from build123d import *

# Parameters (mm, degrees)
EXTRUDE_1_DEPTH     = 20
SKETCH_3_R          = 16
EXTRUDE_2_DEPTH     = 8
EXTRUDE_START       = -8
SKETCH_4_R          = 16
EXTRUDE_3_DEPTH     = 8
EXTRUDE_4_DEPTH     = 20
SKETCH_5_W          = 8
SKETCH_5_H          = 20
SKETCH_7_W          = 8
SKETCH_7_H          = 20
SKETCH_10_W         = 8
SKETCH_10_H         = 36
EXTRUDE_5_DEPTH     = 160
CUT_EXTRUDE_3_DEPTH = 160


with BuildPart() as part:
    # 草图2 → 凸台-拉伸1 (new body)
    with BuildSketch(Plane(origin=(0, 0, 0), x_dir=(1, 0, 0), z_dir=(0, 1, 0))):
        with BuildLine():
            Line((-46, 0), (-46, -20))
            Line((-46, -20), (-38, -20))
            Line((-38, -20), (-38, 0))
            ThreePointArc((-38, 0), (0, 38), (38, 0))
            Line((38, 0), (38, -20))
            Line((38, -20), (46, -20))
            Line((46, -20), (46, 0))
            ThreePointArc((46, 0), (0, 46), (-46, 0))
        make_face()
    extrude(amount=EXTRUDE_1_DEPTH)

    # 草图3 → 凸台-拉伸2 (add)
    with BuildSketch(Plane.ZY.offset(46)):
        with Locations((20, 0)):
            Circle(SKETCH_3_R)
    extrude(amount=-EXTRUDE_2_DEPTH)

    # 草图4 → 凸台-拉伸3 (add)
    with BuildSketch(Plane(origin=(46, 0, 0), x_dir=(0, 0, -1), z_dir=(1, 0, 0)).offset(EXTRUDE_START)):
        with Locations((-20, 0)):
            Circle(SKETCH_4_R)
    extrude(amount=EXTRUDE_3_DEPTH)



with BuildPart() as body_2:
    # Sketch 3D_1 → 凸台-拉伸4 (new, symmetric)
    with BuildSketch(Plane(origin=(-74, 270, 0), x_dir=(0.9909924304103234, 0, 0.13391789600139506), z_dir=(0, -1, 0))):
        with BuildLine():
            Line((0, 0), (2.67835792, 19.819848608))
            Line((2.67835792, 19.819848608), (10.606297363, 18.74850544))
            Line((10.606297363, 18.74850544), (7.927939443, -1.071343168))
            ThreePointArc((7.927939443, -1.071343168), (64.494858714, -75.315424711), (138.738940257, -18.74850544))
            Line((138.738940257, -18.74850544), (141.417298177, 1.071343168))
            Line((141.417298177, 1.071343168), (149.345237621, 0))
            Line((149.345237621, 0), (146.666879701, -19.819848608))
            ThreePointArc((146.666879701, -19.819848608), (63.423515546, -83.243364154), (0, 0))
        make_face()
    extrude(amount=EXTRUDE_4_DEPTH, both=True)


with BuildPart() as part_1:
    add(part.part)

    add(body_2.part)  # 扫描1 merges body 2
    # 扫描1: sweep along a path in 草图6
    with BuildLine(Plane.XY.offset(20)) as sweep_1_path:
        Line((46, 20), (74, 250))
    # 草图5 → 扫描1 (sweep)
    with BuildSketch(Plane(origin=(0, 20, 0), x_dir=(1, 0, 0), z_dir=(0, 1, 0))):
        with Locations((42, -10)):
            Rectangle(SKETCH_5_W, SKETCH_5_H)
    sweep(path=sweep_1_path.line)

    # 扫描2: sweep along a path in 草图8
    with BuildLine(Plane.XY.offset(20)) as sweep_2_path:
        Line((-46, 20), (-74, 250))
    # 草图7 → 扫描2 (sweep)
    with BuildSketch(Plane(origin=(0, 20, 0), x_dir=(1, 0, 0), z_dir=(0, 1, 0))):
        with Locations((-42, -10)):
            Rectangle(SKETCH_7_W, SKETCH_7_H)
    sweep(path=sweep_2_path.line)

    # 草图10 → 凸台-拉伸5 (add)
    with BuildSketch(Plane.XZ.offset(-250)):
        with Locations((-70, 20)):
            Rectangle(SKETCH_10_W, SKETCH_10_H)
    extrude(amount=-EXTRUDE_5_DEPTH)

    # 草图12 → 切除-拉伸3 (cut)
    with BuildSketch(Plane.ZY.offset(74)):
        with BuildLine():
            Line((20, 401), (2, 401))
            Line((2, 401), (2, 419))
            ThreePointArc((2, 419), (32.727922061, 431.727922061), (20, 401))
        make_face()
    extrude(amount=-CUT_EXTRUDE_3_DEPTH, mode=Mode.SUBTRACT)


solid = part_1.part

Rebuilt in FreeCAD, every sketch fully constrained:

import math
import FreeCAD as App
import Part
import Sketcher
from FreeCAD import Vector
Q = App.Units.Quantity

doc = App.newDocument("Part")
body = doc.addObject("PartDesign::Body", "Body")

# Sketch on XZ plane
sketch1 = body.newObject("Sketcher::SketchObject", "Sketch")
sketch1.AttachmentSupport = (doc.getObject("XZ_Plane"), [""])
sketch1.MapMode = "FlatFace"
sketch1.addGeometry(Part.LineSegment(Vector(-46, 0, 0), Vector(-46, 20, 0)), False)
sketch1.addGeometry(Part.LineSegment(Vector(-46, 20, 0), Vector(-38, 20, 0)), False)
sketch1.addGeometry(Part.LineSegment(Vector(-38, 20, 0), Vector(-38, 0, 0)), False)
sketch1.addGeometry(Part.ArcOfCircle(Part.Circle(Vector(0, 0, 0), Vector(0, 0, 1), 38), math.radians(180), math.radians(360)), False)
sketch1.addGeometry(Part.LineSegment(Vector(38, 0, 0), Vector(38, 20, 0)), False)
sketch1.addGeometry(Part.LineSegment(Vector(38, 20, 0), Vector(46, 20, 0)), False)
sketch1.addGeometry(Part.LineSegment(Vector(46, 20, 0), Vector(46, 0, 0)), False)
sketch1.addGeometry(Part.ArcOfCircle(Part.Circle(Vector(0, 0, 0), Vector(0, 0, 1), 46), math.radians(180), math.radians(360)), False)
sketch1.addConstraint(Sketcher.Constraint("Coincident", 0, 2, 1, 1))
sketch1.addConstraint(Sketcher.Constraint("Coincident", 1, 2, 2, 1))
sketch1.addConstraint(Sketcher.Constraint("Tangent", 2, 2, 3, 1))
sketch1.addConstraint(Sketcher.Constraint("Tangent", 3, 2, 4, 1))
sketch1.addConstraint(Sketcher.Constraint("Coincident", 4, 2, 5, 1))
sketch1.addConstraint(Sketcher.Constraint("Coincident", 5, 2, 6, 1))
sketch1.addConstraint(Sketcher.Constraint("Tangent", 6, 2, 7, 2))
sketch1.addConstraint(Sketcher.Constraint("Tangent", 7, 1, 0, 1))
sketch1.addConstraint(Sketcher.Constraint("Vertical", 0))
sketch1.addConstraint(Sketcher.Constraint("Horizontal", 1))
sketch1.addConstraint(Sketcher.Constraint("Vertical", 2))
sketch1.addConstraint(Sketcher.Constraint("Vertical", 4))
sketch1.addConstraint(Sketcher.Constraint("Horizontal", 5))
sketch1.addConstraint(Sketcher.Constraint("Vertical", 6))
sketch1.addConstraint(Sketcher.Constraint("Coincident", 3, 3, -1, 1))
sketch1.addConstraint(Sketcher.Constraint("Coincident", 7, 3, -1, 1))
sketch1.addConstraint(Sketcher.Constraint("Horizontal", 1, 2, 4, 2))
sketch1.addConstraint(Sketcher.Constraint("Radius", 3, Q("38 mm")))
sketch1.addConstraint(Sketcher.Constraint("Radius", 7, Q("46 mm")))
sketch1.addConstraint(Sketcher.Constraint("DistanceY", 0, 1, 0, 2, Q("20 mm")))
pad1 = body.newObject("PartDesign::Pad", "Pad")
pad1.Profile = sketch1
pad1.Length = 20
pad1.Reversed = True

# Sketch on YZ plane
sketch2 = body.newObject("Sketcher::SketchObject", "Sketch001")
sketch2.AttachmentSupport = (doc.getObject("YZ_Plane"), [""])
sketch2.MapMode = "FlatFace"
sketch2.AttachmentOffset = App.Placement(Vector(0, 0, -46), App.Rotation())
sketch2.addGeometry(Part.Circle(Vector(0, 20, 0), Vector(0, 0, 1), 16), False)
sketch2.addConstraint(Sketcher.Constraint("PointOnObject", 0, 3, -2))
sketch2.addConstraint(Sketcher.Constraint("Diameter", 0, Q("32 mm")))
sketch2.addConstraint(Sketcher.Constraint("DistanceY", -1, 1, 0, 3, Q("20 mm")))
pad2 = body.newObject("PartDesign::Pad", "Pad001")
pad2.Profile = sketch2
pad2.Length = 8

# Sketch on YZ plane
sketch3 = body.newObject("Sketcher::SketchObject", "Sketch002")
sketch3.AttachmentSupport = (doc.getObject("YZ_Plane"), [""])
sketch3.MapMode = "FlatFace"
sketch3.AttachmentOffset = App.Placement(Vector(0, 0, 38), App.Rotation())
sketch3.addGeometry(Part.Circle(Vector(0, 20, 0), Vector(0, 0, 1), 16), False)
sketch3.addConstraint(Sketcher.Constraint("PointOnObject", 0, 3, -2))
sketch3.addConstraint(Sketcher.Constraint("Diameter", 0, Q("32 mm")))
sketch3.addConstraint(Sketcher.Constraint("DistanceY", -1, 1, 0, 3, Q("20 mm")))
pad3 = body.newObject("PartDesign::Pad", "Pad002")
pad3.Profile = sketch3
pad3.Length = 8
body2 = doc.addObject("PartDesign::Body", "Body001")

# Sketch on XZ plane
sketch4 = body2.newObject("Sketcher::SketchObject", "Sketch003")
sketch4.AttachmentSupport = (doc.getObject("XZ_Plane001"), [""])
sketch4.MapMode = "FlatFace"
sketch4.AttachmentOffset = App.Placement(Vector(0, 0, -270), App.Rotation())
sketch4.addGeometry(Part.LineSegment(Vector(-74, 20, 0), Vector(-74, 0, 0)), False)
sketch4.addGeometry(Part.ArcOfCircle(Part.Circle(Vector(0, 0, 0), Vector(0, 0, 1), 74), math.radians(-180), math.radians(0)), False)
sketch4.addGeometry(Part.LineSegment(Vector(74, 0, 0), Vector(74, 20, 0)), False)
sketch4.addGeometry(Part.LineSegment(Vector(74, 20, 0), Vector(66, 20, 0)), False)
sketch4.addGeometry(Part.LineSegment(Vector(66, 20, 0), Vector(66, 0, 0)), False)
sketch4.addGeometry(Part.ArcOfCircle(Part.Circle(Vector(0, 0, 0), Vector(0, 0, 1), 66), math.radians(-180), math.radians(0)), False)
sketch4.addGeometry(Part.LineSegment(Vector(-66, 0, 0), Vector(-66, 20, 0)), False)
sketch4.addGeometry(Part.LineSegment(Vector(-66, 20, 0), Vector(-74, 20, 0)), False)
sketch4.addConstraint(Sketcher.Constraint("Tangent", 0, 2, 1, 1))
sketch4.addConstraint(Sketcher.Constraint("Tangent", 1, 2, 2, 1))
sketch4.addConstraint(Sketcher.Constraint("Coincident", 2, 2, 3, 1))
sketch4.addConstraint(Sketcher.Constraint("Coincident", 3, 2, 4, 1))
sketch4.addConstraint(Sketcher.Constraint("Tangent", 4, 2, 5, 2))
sketch4.addConstraint(Sketcher.Constraint("Tangent", 5, 1, 6, 1))
sketch4.addConstraint(Sketcher.Constraint("Coincident", 6, 2, 7, 1))
sketch4.addConstraint(Sketcher.Constraint("Coincident", 7, 2, 0, 1))
sketch4.addConstraint(Sketcher.Constraint("Vertical", 0))
sketch4.addConstraint(Sketcher.Constraint("Vertical", 2))
sketch4.addConstraint(Sketcher.Constraint("Horizontal", 3))
sketch4.addConstraint(Sketcher.Constraint("Vertical", 4))
sketch4.addConstraint(Sketcher.Constraint("Vertical", 6))
sketch4.addConstraint(Sketcher.Constraint("Horizontal", 7))
sketch4.addConstraint(Sketcher.Constraint("Coincident", 1, 3, -1, 1))
sketch4.addConstraint(Sketcher.Constraint("Coincident", 5, 3, -1, 1))
sketch4.addConstraint(Sketcher.Constraint("Horizontal", 3, 2, 6, 2))
sketch4.addConstraint(Sketcher.Constraint("Radius", 1, Q("74 mm")))
sketch4.addConstraint(Sketcher.Constraint("Radius", 5, Q("66 mm")))
sketch4.addConstraint(Sketcher.Constraint("DistanceY", 0, 2, 0, 1, Q("20 mm")))
pad4 = body2.newObject("PartDesign::Pad", "Pad003")
pad4.Profile = sketch4
pad4.Length = 40
pad4.Midplane = True
body.AllowCompound = True
doc.recompute()

boolean = body.newObject("PartDesign::Boolean", "Boolean")
boolean.Type = "Fuse"
boolean.addObjects([body2])

# Sketch on XZ plane
sketch5 = body.newObject("Sketcher::SketchObject", "Sketch004")
sketch5.AttachmentSupport = (doc.getObject("XZ_Plane"), [""])
sketch5.MapMode = "FlatFace"
sketch5.AttachmentOffset = App.Placement(Vector(0, 0, -20), App.Rotation())
sketch5.addGeometry(Part.LineSegment(Vector(38, 0, 0), Vector(38, 20, 0)), False)
sketch5.addGeometry(Part.LineSegment(Vector(38, 20, 0), Vector(46, 20, 0)), False)
sketch5.addGeometry(Part.LineSegment(Vector(46, 20, 0), Vector(46, 0, 0)), False)
sketch5.addGeometry(Part.LineSegment(Vector(46, 0, 0), Vector(38, 0, 0)), False)
sketch5.addConstraint(Sketcher.Constraint("Coincident", 0, 2, 1, 1))
sketch5.addConstraint(Sketcher.Constraint("Coincident", 1, 2, 2, 1))
sketch5.addConstraint(Sketcher.Constraint("Coincident", 2, 2, 3, 1))
sketch5.addConstraint(Sketcher.Constraint("Coincident", 3, 2, 0, 1))
sketch5.addConstraint(Sketcher.Constraint("Vertical", 0))
sketch5.addConstraint(Sketcher.Constraint("Horizontal", 1))
sketch5.addConstraint(Sketcher.Constraint("Vertical", 2))
sketch5.addConstraint(Sketcher.Constraint("Horizontal", 3))
sketch5.addConstraint(Sketcher.Constraint("PointOnObject", 2, 2, -1))
sketch5.addConstraint(Sketcher.Constraint("DistanceX", 1, 1, 1, 2, Q("8 mm")))
sketch5.addConstraint(Sketcher.Constraint("DistanceY", 0, 1, 0, 2, Q("20 mm")))
sketch5.addConstraint(Sketcher.Constraint("DistanceX", -1, 1, 0, 2, Q("38 mm")))

# Sketch on an angled plane
sketch6 = body.newObject("Sketcher::SketchObject", "Sketch005")
sketch6.Placement = App.Placement(Vector(42.928992, -5.226138, 0), App.Rotation(Vector(0.120846923, 0.992671155, 0), Vector(0, 0, 1.000000001), Vector(0.992671155, -0.120846923, 0), "ZXY"))
sketch6.addGeometry(Part.LineSegment(Vector(25, 20, 0), Vector(257, 20, 0)), False)
sketch6.addConstraint(Sketcher.Constraint("Horizontal", 0))
sketch6.addConstraint(Sketcher.Constraint("DistanceY", -1, 1, 0, 1, Q("20 mm")))
sketch6.addConstraint(Sketcher.Constraint("DistanceX", 0, 1, 0, 2, Q("231.69808 mm")))
sketch6.addConstraint(Sketcher.Constraint("DistanceX", -1, 1, 0, 1, Q("25.412382 mm")))
doc.recompute()

additivepipe = body.newObject("PartDesign::AdditivePipe", "AdditivePipe")
additivepipe.Profile = sketch5
additivepipe.Spine = (sketch6, ["Edge1"])

# Sketch on XZ plane
sketch7 = body.newObject("Sketcher::SketchObject", "Sketch006")
sketch7.AttachmentSupport = (doc.getObject("XZ_Plane"), [""])
sketch7.MapMode = "FlatFace"
sketch7.AttachmentOffset = App.Placement(Vector(0, 0, -20), App.Rotation())
sketch7.addGeometry(Part.LineSegment(Vector(-46, 0, 0), Vector(-46, 20, 0)), False)
sketch7.addGeometry(Part.LineSegment(Vector(-46, 20, 0), Vector(-38, 20, 0)), False)
sketch7.addGeometry(Part.LineSegment(Vector(-38, 20, 0), Vector(-38, 0, 0)), False)
sketch7.addGeometry(Part.LineSegment(Vector(-38, 0, 0), Vector(-46, 0, 0)), False)
sketch7.addConstraint(Sketcher.Constraint("Coincident", 0, 2, 1, 1))
sketch7.addConstraint(Sketcher.Constraint("Coincident", 1, 2, 2, 1))
sketch7.addConstraint(Sketcher.Constraint("Coincident", 2, 2, 3, 1))
sketch7.addConstraint(Sketcher.Constraint("Coincident", 3, 2, 0, 1))
sketch7.addConstraint(Sketcher.Constraint("Vertical", 0))
sketch7.addConstraint(Sketcher.Constraint("Horizontal", 1))
sketch7.addConstraint(Sketcher.Constraint("Vertical", 2))
sketch7.addConstraint(Sketcher.Constraint("Horizontal", 3))
sketch7.addConstraint(Sketcher.Constraint("PointOnObject", 2, 2, -1))
sketch7.addConstraint(Sketcher.Constraint("DistanceX", 1, 1, 1, 2, Q("8 mm")))
sketch7.addConstraint(Sketcher.Constraint("DistanceY", 0, 1, 0, 2, Q("20 mm")))
sketch7.addConstraint(Sketcher.Constraint("DistanceX", 0, 2, -1, 1, Q("46 mm")))

# Sketch on an angled plane
sketch8 = body.newObject("Sketcher::SketchObject", "Sketch007")
sketch8.Placement = App.Placement(Vector(-42.928992, -5.226138, 0), App.Rotation(Vector(-0.120846923, 0.992671155, 0), Vector(0, 0, 1.000000001), Vector(0.992671155, 0.120846923, 0), "ZXY"))
sketch8.addGeometry(Part.LineSegment(Vector(25, 20, 0), Vector(257, 20, 0)), False)
sketch8.addConstraint(Sketcher.Constraint("Horizontal", 0))
sketch8.addConstraint(Sketcher.Constraint("DistanceY", -1, 1, 0, 1, Q("20 mm")))
sketch8.addConstraint(Sketcher.Constraint("DistanceX", 0, 1, 0, 2, Q("231.69808 mm")))
sketch8.addConstraint(Sketcher.Constraint("DistanceX", -1, 1, 0, 1, Q("25.412382 mm")))
doc.recompute()

additivepipe2 = body.newObject("PartDesign::AdditivePipe", "AdditivePipe001")
additivepipe2.Profile = sketch7
additivepipe2.Spine = (sketch8, ["Edge1"])

# Sketch on XZ plane
sketch9 = body.newObject("Sketcher::SketchObject", "Sketch008")
sketch9.AttachmentSupport = (doc.getObject("XZ_Plane"), [""])
sketch9.MapMode = "FlatFace"
sketch9.AttachmentOffset = App.Placement(Vector(0, 0, -250), App.Rotation())
sketch9.addGeometry(Part.LineSegment(Vector(-74, 38, 0), Vector(-74, 2, 0)), False)
sketch9.addGeometry(Part.LineSegment(Vector(-74, 2, 0), Vector(-66, 2, 0)), False)
sketch9.addGeometry(Part.LineSegment(Vector(-66, 2, 0), Vector(-66, 38, 0)), False)
sketch9.addGeometry(Part.LineSegment(Vector(-66, 38, 0), Vector(-74, 38, 0)), False)
sketch9.addConstraint(Sketcher.Constraint("Coincident", 0, 2, 1, 1))
sketch9.addConstraint(Sketcher.Constraint("Coincident", 1, 2, 2, 1))
sketch9.addConstraint(Sketcher.Constraint("Coincident", 2, 2, 3, 1))
sketch9.addConstraint(Sketcher.Constraint("Coincident", 3, 2, 0, 1))
sketch9.addConstraint(Sketcher.Constraint("Vertical", 0))
sketch9.addConstraint(Sketcher.Constraint("Horizontal", 1))
sketch9.addConstraint(Sketcher.Constraint("Vertical", 2))
sketch9.addConstraint(Sketcher.Constraint("Horizontal", 3))
sketch9.addConstraint(Sketcher.Constraint("DistanceX", 1, 1, 1, 2, Q("8 mm")))
sketch9.addConstraint(Sketcher.Constraint("DistanceY", 0, 2, 0, 1, Q("36 mm")))
sketch9.addConstraint(Sketcher.Constraint("DistanceX", 0, 2, -1, 1, Q("74 mm")))
sketch9.addConstraint(Sketcher.Constraint("DistanceY", -1, 1, 0, 2, Q("2 mm")))
pad5 = body.newObject("PartDesign::Pad", "Pad004")
pad5.Profile = sketch9
pad5.Length = 160
pad5.Reversed = True

# Sketch on YZ plane
sketch10 = body.newObject("Sketcher::SketchObject", "Sketch009")
sketch10.AttachmentSupport = (doc.getObject("YZ_Plane"), [""])
sketch10.MapMode = "FlatFace"
sketch10.AttachmentOffset = App.Placement(Vector(0, 0, -74), App.Rotation())
sketch10.addGeometry(Part.LineSegment(Vector(401, 2, 0), Vector(401, 20, 0)), False)
sketch10.addGeometry(Part.ArcOfCircle(Part.Circle(Vector(419, 20, 0), Vector(0, 0, 1), 18), math.radians(-90), math.radians(180)), False)
sketch10.addGeometry(Part.LineSegment(Vector(419, 2, 0), Vector(401, 2, 0)), False)
sketch10.addConstraint(Sketcher.Constraint("Tangent", 0, 2, 1, 2))
sketch10.addConstraint(Sketcher.Constraint("Tangent", 1, 1, 2, 1))
sketch10.addConstraint(Sketcher.Constraint("Coincident", 2, 2, 0, 1))
sketch10.addConstraint(Sketcher.Constraint("Vertical", 0))
sketch10.addConstraint(Sketcher.Constraint("Horizontal", 2))
sketch10.addConstraint(Sketcher.Constraint("Radius", 1, Q("18 mm")))
sketch10.addConstraint(Sketcher.Constraint("DistanceX", -1, 1, 1, 3, Q("419 mm")))
sketch10.addConstraint(Sketcher.Constraint("DistanceY", -1, 1, 1, 3, Q("20 mm")))
pocket1 = body.newObject("PartDesign::Pocket", "Pocket")
pocket1.Profile = sketch10
pocket1.Length = 160
pocket1.Reversed = True

doc.recompute()
